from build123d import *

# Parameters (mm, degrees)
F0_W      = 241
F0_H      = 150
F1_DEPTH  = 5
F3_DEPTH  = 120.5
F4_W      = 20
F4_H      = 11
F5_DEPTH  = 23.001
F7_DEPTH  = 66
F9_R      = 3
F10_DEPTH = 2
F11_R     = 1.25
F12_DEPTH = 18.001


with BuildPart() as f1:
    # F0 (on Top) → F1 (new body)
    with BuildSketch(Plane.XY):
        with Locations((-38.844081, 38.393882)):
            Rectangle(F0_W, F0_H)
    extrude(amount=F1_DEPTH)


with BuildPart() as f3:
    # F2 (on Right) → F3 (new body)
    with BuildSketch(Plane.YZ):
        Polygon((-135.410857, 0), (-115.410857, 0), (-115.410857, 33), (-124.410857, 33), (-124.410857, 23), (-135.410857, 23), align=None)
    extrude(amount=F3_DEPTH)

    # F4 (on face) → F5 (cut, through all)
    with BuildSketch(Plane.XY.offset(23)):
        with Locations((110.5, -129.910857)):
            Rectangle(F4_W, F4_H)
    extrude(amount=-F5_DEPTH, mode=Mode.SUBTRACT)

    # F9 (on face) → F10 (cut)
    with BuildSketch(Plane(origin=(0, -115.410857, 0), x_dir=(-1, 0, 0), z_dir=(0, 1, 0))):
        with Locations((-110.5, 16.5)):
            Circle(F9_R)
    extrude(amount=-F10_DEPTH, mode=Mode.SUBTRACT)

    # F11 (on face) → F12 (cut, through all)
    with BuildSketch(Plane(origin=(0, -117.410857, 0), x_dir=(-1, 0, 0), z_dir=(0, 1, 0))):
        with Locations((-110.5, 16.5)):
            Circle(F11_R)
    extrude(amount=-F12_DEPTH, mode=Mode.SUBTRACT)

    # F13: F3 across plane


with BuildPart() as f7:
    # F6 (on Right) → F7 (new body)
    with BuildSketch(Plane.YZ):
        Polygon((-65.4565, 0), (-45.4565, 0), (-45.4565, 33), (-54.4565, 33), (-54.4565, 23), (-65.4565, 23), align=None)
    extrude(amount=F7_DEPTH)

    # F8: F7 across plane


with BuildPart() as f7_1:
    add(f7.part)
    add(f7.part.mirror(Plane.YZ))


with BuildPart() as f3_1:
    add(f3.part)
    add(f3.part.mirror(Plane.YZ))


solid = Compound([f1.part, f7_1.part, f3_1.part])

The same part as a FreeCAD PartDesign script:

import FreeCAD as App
import Part
import Sketcher
Q = App.Units.Quantity

doc = App.newDocument("Part")
body = doc.addObject("PartDesign::Body", "Body")

# Sketch on XY plane
sketch1 = body.newObject("Sketcher::SketchObject", "Sketch")
sketch1.AttachmentSupport = (doc.getObject("XY_Plane"), [""])
sketch1.MapMode = "FlatFace"
sketch1.addGeometry([
    Part.LineSegment(App.Vector(-159.344081, 113.393882, 0), App.Vector(-159.344081, -36.606118, 0)),
    Part.LineSegment(App.Vector(-159.344081, -36.606118, 0), App.Vector(81.655919, -36.606118, 0)),
    Part.LineSegment(App.Vector(81.655919, -36.606118, 0), App.Vector(81.655919, 113.393882, 0)),
    Part.LineSegment(App.Vector(81.655919, 113.393882, 0), App.Vector(-159.344081, 113.393882, 0)),
], False)
sketch1.addConstraint([
    Sketcher.Constraint("Coincident", 0, 2, 1, 1),
    Sketcher.Constraint("Coincident", 1, 2, 2, 1),
    Sketcher.Constraint("Coincident", 2, 2, 3, 1),
    Sketcher.Constraint("Coincident", 3, 2, 0, 1),
    Sketcher.Constraint("Vertical", 0),
    Sketcher.Constraint("Horizontal", 1),
    Sketcher.Constraint("Vertical", 2),
    Sketcher.Constraint("Horizontal", 3),
    Sketcher.Constraint("DistanceX", 1, 1, 1, 2, Q("241 mm")),
    Sketcher.Constraint("DistanceY", 0, 2, 0, 1, Q("150 mm")),
    Sketcher.Constraint("DistanceX", 0, 2, -1, 1, Q("159.344081 mm")),
    Sketcher.Constraint("DistanceY", 0, 2, -1, 1, Q("36.606118 mm")),
])
pad1 = body.newObject("PartDesign::Pad", "Pad")
pad1.Profile = sketch1
pad1.Length = 5
body2 = doc.addObject("PartDesign::Body", "Body001")

# Sketch on YZ plane
sketch2 = body2.newObject("Sketcher::SketchObject", "Sketch001")
sketch2.AttachmentSupport = (doc.getObject("YZ_Plane001"), [""])
sketch2.MapMode = "FlatFace"
sketch2.addGeometry([
    Part.LineSegment(App.Vector(-135.410857, 0, 0), App.Vector(-115.410857, 0, 0)),  # 0
    Part.LineSegment(App.Vector(-115.410857, 0, 0), App.Vector(-115.410857, 33, 0)),  # 1
    Part.LineSegment(App.Vector(-115.410857, 33, 0), App.Vector(-124.410857, 33, 0)),  # 2
    Part.LineSegment(App.Vector(-124.410857, 33, 0), App.Vector(-124.410857, 23, 0)),  # 3
    Part.LineSegment(App.Vector(-124.410857, 23, 0), App.Vector(-135.410857, 23, 0)),  # 4
    Part.LineSegment(App.Vector(-135.410857, 23, 0), App.Vector(-135.410857, 0, 0)),  # 5
], False)
sketch2.addConstraint([
    Sketcher.Constraint("Coincident", 0, 2, 1, 1),
    Sketcher.Constraint("Coincident", 1, 2, 2, 1),
    Sketcher.Constraint("Coincident", 2, 2, 3, 1),
    Sketcher.Constraint("Coincident", 3, 2, 4, 1),
    Sketcher.Constraint("Coincident", 4, 2, 5, 1),
    Sketcher.Constraint("Coincident", 5, 2, 0, 1),
    Sketcher.Constraint("Horizontal", 0),
    Sketcher.Constraint("Vertical", 1),
    Sketcher.Constraint("Horizontal", 2),
    Sketcher.Constraint("Vertical", 3),
    Sketcher.Constraint("Horizontal", 4),
    Sketcher.Constraint("Vertical", 5),
    Sketcher.Constraint("PointOnObject", 0, 2, -1),
    Sketcher.Constraint("DistanceX", 0, 1, 0, 2, Q("20 mm")),
    Sketcher.Constraint("DistanceX", 2, 2, 2, 1, Q("9 mm")),
    Sketcher.Constraint("DistanceY", 1, 1, 1, 2, Q("33 mm")),
    Sketcher.Constraint("DistanceY", 3, 2, 3, 1, Q("10 mm")),
    Sketcher.Constraint("DistanceX", 0, 2, -1, 1, Q("115.410857 mm")),
])
pad2 = body2.newObject("PartDesign::Pad", "Pad001")
pad2.Profile = sketch2
pad2.Length = 120.5

# Sketch on XY plane
sketch3 = body2.newObject("Sketcher::SketchObject", "Sketch002")
sketch3.AttachmentSupport = (doc.getObject("XY_Plane001"), [""])
sketch3.MapMode = "FlatFace"
sketch3.AttachmentOffset = App.Placement(App.Vector(0, 0, 23), App.Rotation())
sketch3.addGeometry([
    Part.LineSegment(App.Vector(100.5, -124.410857, 0), App.Vector(100.5, -135.410857, 0)),
    Part.LineSegment(App.Vector(100.5, -135.410857, 0), App.Vector(120.5, -135.410857, 0)),
    Part.LineSegment(App.Vector(120.5, -135.410857, 0), App.Vector(120.5, -124.410857, 0)),
    Part.LineSegment(App.Vector(120.5, -124.410857, 0), App.Vector(100.5, -124.410857, 0)),
], False)
sketch3.addConstraint([
    Sketcher.Constraint("Coincident", 0, 2, 1, 1),
    Sketcher.Constraint("Coincident", 1, 2, 2, 1),
    Sketcher.Constraint("Coincident", 2, 2, 3, 1),
    Sketcher.Constraint("Coincident", 3, 2, 0, 1),
    Sketcher.Constraint("Vertical", 0),
    Sketcher.Constraint("Horizontal", 1),
    Sketcher.Constraint("Vertical", 2),
    Sketcher.Constraint("Horizontal", 3),
    Sketcher.Constraint("DistanceX", 1, 1, 1, 2, Q("20 mm")),
    Sketcher.Constraint("DistanceY", 0, 2, 0, 1, Q("11 mm")),
    Sketcher.Constraint("DistanceX", -1, 1, 0, 2, Q("100.5 mm")),
    Sketcher.Constraint("DistanceY", 0, 2, -1, 1, Q("135.410857 mm")),
])
pocket1 = body2.newObject("PartDesign::Pocket", "Pocket")
pocket1.Profile = sketch3
pocket1.Type = "ThroughAll"

# Sketch on XZ plane
sketch4 = body2.newObject("Sketcher::SketchObject", "Sketch003")
sketch4.AttachmentSupport = (doc.getObject("XZ_Plane001"), [""])
sketch4.MapMode = "FlatFace"
sketch4.AttachmentOffset = App.Placement(App.Vector(0, 0, 115.410857), App.Rotation())
sketch4.addGeometry(Part.Circle(App.Vector(110.5, 16.5, 0), App.Vector(0, 0, 1), 3), False)
sketch4.addConstraint([
    Sketcher.Constraint("Diameter", 0, Q("6 mm")),
    Sketcher.Constraint("DistanceX", -1, 1, 0, 3, Q("110.5 mm")),
    Sketcher.Constraint("DistanceY", -1, 1, 0, 3, Q("16.5 mm")),
])
pocket2 = body2.newObject("PartDesign::Pocket", "Pocket001")
pocket2.Profile = sketch4
pocket2.Length = 2
pocket2.Reversed = True

# Sketch on XZ plane
sketch5 = body2.newObject("Sketcher::SketchObject", "Sketch004")
sketch5.AttachmentSupport = (doc.getObject("XZ_Plane001"), [""])
sketch5.MapMode = "FlatFace"
sketch5.AttachmentOffset = App.Placement(App.Vector(0, 0, 117.410857), App.Rotation())
sketch5.addGeometry(Part.Circle(App.Vector(110.5, 16.5, 0), App.Vector(0, 0, 1), 1.25), False)
sketch5.addConstraint([
    Sketcher.Constraint("Diameter", 0, Q("2.5 mm")),
    Sketcher.Constraint("DistanceX", -1, 1, 0, 3, Q("110.5 mm")),
    Sketcher.Constraint("DistanceY", -1, 1, 0, 3, Q("16.5 mm")),
])
pocket3 = body2.newObject("PartDesign::Pocket", "Pocket002")
pocket3.Profile = sketch5
pocket3.Type = "ThroughAll"
pocket3.Reversed = True
body3 = doc.addObject("PartDesign::Body", "Body002")

# Sketch on YZ plane
sketch6 = body3.newObject("Sketcher::SketchObject", "Sketch005")
sketch6.AttachmentSupport = (doc.getObject("YZ_Plane002"), [""])
sketch6.MapMode = "FlatFace"
sketch6.addGeometry([
    Part.LineSegment(App.Vector(-65.4565, 0, 0), App.Vector(-45.4565, 0, 0)),  # 0
    Part.LineSegment(App.Vector(-45.4565, 0, 0), App.Vector(-45.4565, 33, 0)),  # 1
    Part.LineSegment(App.Vector(-45.4565, 33, 0), App.Vector(-54.4565, 33, 0)),  # 2
    Part.LineSegment(App.Vector(-54.4565, 33, 0), App.Vector(-54.4565, 23, 0)),  # 3
    Part.LineSegment(App.Vector(-54.4565, 23, 0), App.Vector(-65.4565, 23, 0)),  # 4
    Part.LineSegment(App.Vector(-65.4565, 23, 0), App.Vector(-65.4565, 0, 0)),  # 5
], False)
sketch6.addConstraint([
    Sketcher.Constraint("Coincident", 0, 2, 1, 1),
    Sketcher.Constraint("Coincident", 1, 2, 2, 1),
    Sketcher.Constraint("Coincident", 2, 2, 3, 1),
    Sketcher.Constraint("Coincident", 3, 2, 4, 1),
    Sketcher.Constraint("Coincident", 4, 2, 5, 1),
    Sketcher.Constraint("Coincident", 5, 2, 0, 1),
    Sketcher.Constraint("Horizontal", 0),
    Sketcher.Constraint("Vertical", 1),
    Sketcher.Constraint("Horizontal", 2),
    Sketcher.Constraint("Vertical", 3),
    Sketcher.Constraint("Horizontal", 4),
    Sketcher.Constraint("Vertical", 5),
    Sketcher.Constraint("PointOnObject", 0, 2, -1),
    Sketcher.Constraint("DistanceX", 0, 1, 0, 2, Q("20 mm")),
    Sketcher.Constraint("DistanceX", 2, 2, 2, 1, Q("9 mm")),
    Sketcher.Constraint("DistanceY", 1, 1, 1, 2, Q("33 mm")),
    Sketcher.Constraint("DistanceY", 3, 2, 3, 1, Q("10 mm")),
    Sketcher.Constraint("DistanceX", 0, 2, -1, 1, Q("45.4565 mm")),
])
pad3 = body3.newObject("PartDesign::Pad", "Pad002")
pad3.Profile = sketch6
pad3.Length = 66
body4 = doc.addObject("PartDesign::Body", "Body003")
doc.recompute()

body4.BaseFeature = body3
doc.recompute()

mirroring = doc.addObject("Part::Mirroring", "Mirroring")
mirroring.Source = body3
mirroring.Base = App.Vector(0, 0, 0)
mirroring.Normal = App.Vector(1, 0, 0)
body5 = doc.addObject("PartDesign::Body", "Body004")
body5.BaseFeature = mirroring
boolean = body4.newObject("PartDesign::Boolean", "Boolean")
boolean.Type = "Fuse"
boolean.addObjects([body5])
doc.recompute()
body6 = doc.addObject("PartDesign::Body", "Body005")
doc.recompute()

body6.BaseFeature = body2
doc.recompute()

mirroring2 = doc.addObject("Part::Mirroring", "Mirroring001")
mirroring2.Source = body2
mirroring2.Base = App.Vector(0, 0, 0)
mirroring2.Normal = App.Vector(1, 0, 0)
body7 = doc.addObject("PartDesign::Body", "Body006")
body7.BaseFeature = mirroring2
boolean2 = body6.newObject("PartDesign::Boolean", "Boolean001")
boolean2.Type = "Fuse"
boolean2.addObjects([body7])
doc.recompute()
mirroring.Visibility = False
mirroring2.Visibility = False

doc.recompute()
